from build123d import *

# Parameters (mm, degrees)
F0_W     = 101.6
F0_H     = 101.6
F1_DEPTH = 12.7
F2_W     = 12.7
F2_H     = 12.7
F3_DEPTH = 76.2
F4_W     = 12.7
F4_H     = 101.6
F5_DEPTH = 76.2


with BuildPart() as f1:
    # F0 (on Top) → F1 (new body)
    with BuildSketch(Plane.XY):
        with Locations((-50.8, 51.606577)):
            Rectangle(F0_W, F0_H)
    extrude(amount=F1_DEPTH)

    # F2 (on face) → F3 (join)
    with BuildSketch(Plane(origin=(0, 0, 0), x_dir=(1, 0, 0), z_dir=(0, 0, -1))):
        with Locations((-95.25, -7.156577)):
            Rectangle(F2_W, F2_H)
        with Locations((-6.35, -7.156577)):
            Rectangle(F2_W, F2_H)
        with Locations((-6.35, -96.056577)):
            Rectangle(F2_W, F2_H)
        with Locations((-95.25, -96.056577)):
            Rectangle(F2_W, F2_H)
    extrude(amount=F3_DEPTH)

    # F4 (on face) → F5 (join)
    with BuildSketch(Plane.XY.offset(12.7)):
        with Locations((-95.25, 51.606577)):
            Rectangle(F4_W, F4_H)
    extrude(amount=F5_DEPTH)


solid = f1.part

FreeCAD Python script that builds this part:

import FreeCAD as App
import Part
import Sketcher

V = App.Vector
Q = App.Units.Quantity

doc = App.newDocument("Part")
body = doc.addObject("PartDesign::Body", "Body")

# Sketch on XY plane
sketch1 = body.newObject("Sketcher::SketchObject", "Sketch")
sketch1.AttachmentSupport = (doc.getObject("XY_Plane"), [""])
sketch1.MapMode = "FlatFace"
sketch1.addGeometry([
    Part.LineSegment(V(-102, 102, 0), V(-102, 1, 0)),
    Part.LineSegment(V(-102, 1, 0), V(0, 1, 0)),
    Part.LineSegment(V(0, 1, 0), V(0, 102, 0)),
    Part.LineSegment(V(0, 102, 0), V(-102, 102, 0)),
], False)
sketch1.addConstraint([
    Sketcher.Constraint("Coincident", 0, 2, 1, 1),
    Sketcher.Constraint("Coincident", 1, 2, 2, 1),
    Sketcher.Constraint("Coincident", 2, 2, 3, 1),
    Sketcher.Constraint("Coincident", 3, 2, 0, 1),
    Sketcher.Constraint("Vertical", 0),
    Sketcher.Constraint("Horizontal", 1),
    Sketcher.Constraint("Vertical", 2),
    Sketcher.Constraint("Horizontal", 3),
    Sketcher.Constraint("PointOnObject", 1, 2, -2),
    Sketcher.Constraint("Equal", 3, 0),
    Sketcher.Constraint("DistanceX", 1, 1, 1, 2, Q("4 in")),
    Sketcher.Constraint("DistanceY", -1, 1, 0, 2, Q("0.806577 mm")),
])
pad1 = body.newObject("PartDesign::Pad", "Pad")
pad1.Profile = sketch1
pad1.Length = Q("0.5 in")

# Sketch on XY plane
sketch2 = body.newObject("Sketcher::SketchObject", "Sketch001")
sketch2.AttachmentSupport = (doc.getObject("XY_Plane"), [""])
sketch2.MapMode = "FlatFace"
sketch2.addGeometry([
    Part.LineSegment(V(-102, 1, 0), V(-102, 14, 0)),  # 0
    Part.LineSegment(V(-102, 14, 0), V(-89, 14, 0)),  # 1
    Part.LineSegment(V(-89, 14, 0), V(-89, 1, 0)),  # 2
    Part.LineSegment(V(-89, 1, 0), V(-102, 1, 0)),  # 3
    Part.LineSegment(V(-13, 1, 0), V(-13, 14, 0)),  # 4
    Part.LineSegment(V(-13, 14, 0), V(0, 14, 0)),  # 5
    Part.LineSegment(V(0, 14, 0), V(0, 1, 0)),  # 6
    Part.LineSegment(V(0, 1, 0), V(-13, 1, 0)),  # 7
    Part.LineSegment(V(-13, 90, 0), V(-13, 102, 0)),  # 8
    Part.LineSegment(V(-13, 102, 0), V(0, 102, 0)),  # 9
    Part.LineSegment(V(0, 102, 0), V(0, 90, 0)),  # 10
    Part.LineSegment(V(0, 90, 0), V(-13, 90, 0)),  # 11
    Part.LineSegment(V(-102, 90, 0), V(-102, 102, 0)),  # 12
    Part.LineSegment(V(-102, 102, 0), V(-89, 102, 0)),  # 13
    Part.LineSegment(V(-89, 102, 0), V(-89, 90, 0)),  # 14
    Part.LineSegment(V(-89, 90, 0), V(-102, 90, 0)),  # 15
], False)
sketch2.addConstraint([
    Sketcher.Constraint("Coincident", 0, 2, 1, 1),
    Sketcher.Constraint("Coincident", 1, 2, 2, 1),
    Sketcher.Constraint("Coincident", 2, 2, 3, 1),
    Sketcher.Constraint("Coincident", 3, 2, 0, 1),
    Sketcher.Constraint("Coincident", 4, 2, 5, 1),
    Sketcher.Constraint("Coincident", 5, 2, 6, 1),
    Sketcher.Constraint("Coincident", 6, 2, 7, 1),
    Sketcher.Constraint("Coincident", 7, 2, 4, 1),
    Sketcher.Constraint("Coincident", 8, 2, 9, 1),
    Sketcher.Constraint("Coincident", 9, 2, 10, 1),
    Sketcher.Constraint("Coincident", 10, 2, 11, 1),
    Sketcher.Constraint("Coincident", 11, 2, 8, 1),
    Sketcher.Constraint("Coincident", 12, 2, 13, 1),
    Sketcher.Constraint("Coincident", 13, 2, 14, 1),
    Sketcher.Constraint("Coincident", 14, 2, 15, 1),
    Sketcher.Constraint("Coincident", 15, 2, 12, 1),
    Sketcher.Constraint("Vertical", 0),
    Sketcher.Constraint("Horizontal", 1),
    Sketcher.Constraint("Vertical", 2),
    Sketcher.Constraint("Horizontal", 3),
    Sketcher.Constraint("Vertical", 4),
    Sketcher.Constraint("Horizontal", 5),
    Sketcher.Constraint("Vertical", 6),
    Sketcher.Constraint("Horizontal", 7),
    Sketcher.Constraint("Vertical", 8),
    Sketcher.Constraint("Horizontal", 9),
    Sketcher.Constraint("Vertical", 10),
    Sketcher.Constraint("Horizontal", 11),
    Sketcher.Constraint("Vertical", 12),
    Sketcher.Constraint("Horizontal", 13),
    Sketcher.Constraint("Vertical", 14),
    Sketcher.Constraint("Horizontal", 15),
    Sketcher.Constraint("PointOnObject", 5, 2, -2),
    Sketcher.Constraint("PointOnObject", 9, 2, -2),
    Sketcher.Constraint("Horizontal", 1, 2, 4, 2),
    Sketcher.Constraint("Horizontal", 3, 2, 6, 2),
    Sketcher.Constraint("Horizontal", 9, 2, 12, 2),
    Sketcher.Constraint("Horizontal", 11, 2, 14, 2),
    Sketcher.Constraint("Vertical", 7, 2, 8, 2),
    Sketcher.Constraint("Vertical", 3, 2, 12, 2),
    Sketcher.Constraint("Vertical", 2, 2, 13, 2),
    Sketcher.Constraint("Equal", 3, 5),
    Sketcher.Constraint("Equal", 15, 0),
    Sketcher.Constraint("Equal", 6, 8),
    Sketcher.Constraint("DistanceX", 1, 1, 1, 2, Q("0.5 in")),
    Sketcher.Constraint("DistanceX", 0, 2, -1, 1, Q("4 in")),
    Sketcher.Constraint("DistanceY", 7, 2, 8, 2, Q("4 in")),
    Sketcher.Constraint("DistanceY", -1, 1, 0, 2, Q("13.506577 mm")),
])
pad2 = body.newObject("PartDesign::Pad", "Pad001")
pad2.Profile = sketch2
pad2.Length = Q("3 in")
pad2.Reversed = True

# Sketch on XY plane
sketch3 = body.newObject("Sketcher::SketchObject", "Sketch002")
sketch3.AttachmentSupport = (doc.getObject("XY_Plane"), [""])
sketch3.MapMode = "FlatFace"
sketch3.AttachmentOffset = App.Placement(V(0, 0, 0.5 * 25.4), App.Rotation())
sketch3.addGeometry([
    Part.LineSegment(V(-102, 102, 0), V(-102, 1, 0)),
    Part.LineSegment(V(-102, 1, 0), V(-89, 1, 0)),
    Part.LineSegment(V(-89, 1, 0), V(-89, 102, 0)),
    Part.LineSegment(V(-89, 102, 0), V(-102, 102, 0)),
], False)
sketch3.addConstraint([
    Sketcher.Constraint("Coincident", 0, 2, 1, 1),
    Sketcher.Constraint("Coincident", 1, 2, 2, 1),
    Sketcher.Constraint("Coincident", 2, 2, 3, 1),
    Sketcher.Constraint("Coincident", 3, 2, 0, 1),
    Sketcher.Constraint("Vertical", 0),
    Sketcher.Constraint("Horizontal", 1),
    Sketcher.Constraint("Vertical", 2),
    Sketcher.Constraint("Horizontal", 3),
    Sketcher.Constraint("DistanceY", 0, 2, 0, 1, Q("4 in")),
    Sketcher.Constraint("DistanceX", 1, 1, 1, 2, Q("0.5 in")),
    Sketcher.Constraint("DistanceX", 0, 2, -1, 1, Q("4 in")),
    Sketcher.Constraint("DistanceY", -1, 1, 0, 2, Q("0.806577 mm")),
])
pad3 = body.newObject("PartDesign::Pad", "Pad002")
pad3.Profile = sketch3
pad3.Length = Q("3 in")

doc.recompute()
